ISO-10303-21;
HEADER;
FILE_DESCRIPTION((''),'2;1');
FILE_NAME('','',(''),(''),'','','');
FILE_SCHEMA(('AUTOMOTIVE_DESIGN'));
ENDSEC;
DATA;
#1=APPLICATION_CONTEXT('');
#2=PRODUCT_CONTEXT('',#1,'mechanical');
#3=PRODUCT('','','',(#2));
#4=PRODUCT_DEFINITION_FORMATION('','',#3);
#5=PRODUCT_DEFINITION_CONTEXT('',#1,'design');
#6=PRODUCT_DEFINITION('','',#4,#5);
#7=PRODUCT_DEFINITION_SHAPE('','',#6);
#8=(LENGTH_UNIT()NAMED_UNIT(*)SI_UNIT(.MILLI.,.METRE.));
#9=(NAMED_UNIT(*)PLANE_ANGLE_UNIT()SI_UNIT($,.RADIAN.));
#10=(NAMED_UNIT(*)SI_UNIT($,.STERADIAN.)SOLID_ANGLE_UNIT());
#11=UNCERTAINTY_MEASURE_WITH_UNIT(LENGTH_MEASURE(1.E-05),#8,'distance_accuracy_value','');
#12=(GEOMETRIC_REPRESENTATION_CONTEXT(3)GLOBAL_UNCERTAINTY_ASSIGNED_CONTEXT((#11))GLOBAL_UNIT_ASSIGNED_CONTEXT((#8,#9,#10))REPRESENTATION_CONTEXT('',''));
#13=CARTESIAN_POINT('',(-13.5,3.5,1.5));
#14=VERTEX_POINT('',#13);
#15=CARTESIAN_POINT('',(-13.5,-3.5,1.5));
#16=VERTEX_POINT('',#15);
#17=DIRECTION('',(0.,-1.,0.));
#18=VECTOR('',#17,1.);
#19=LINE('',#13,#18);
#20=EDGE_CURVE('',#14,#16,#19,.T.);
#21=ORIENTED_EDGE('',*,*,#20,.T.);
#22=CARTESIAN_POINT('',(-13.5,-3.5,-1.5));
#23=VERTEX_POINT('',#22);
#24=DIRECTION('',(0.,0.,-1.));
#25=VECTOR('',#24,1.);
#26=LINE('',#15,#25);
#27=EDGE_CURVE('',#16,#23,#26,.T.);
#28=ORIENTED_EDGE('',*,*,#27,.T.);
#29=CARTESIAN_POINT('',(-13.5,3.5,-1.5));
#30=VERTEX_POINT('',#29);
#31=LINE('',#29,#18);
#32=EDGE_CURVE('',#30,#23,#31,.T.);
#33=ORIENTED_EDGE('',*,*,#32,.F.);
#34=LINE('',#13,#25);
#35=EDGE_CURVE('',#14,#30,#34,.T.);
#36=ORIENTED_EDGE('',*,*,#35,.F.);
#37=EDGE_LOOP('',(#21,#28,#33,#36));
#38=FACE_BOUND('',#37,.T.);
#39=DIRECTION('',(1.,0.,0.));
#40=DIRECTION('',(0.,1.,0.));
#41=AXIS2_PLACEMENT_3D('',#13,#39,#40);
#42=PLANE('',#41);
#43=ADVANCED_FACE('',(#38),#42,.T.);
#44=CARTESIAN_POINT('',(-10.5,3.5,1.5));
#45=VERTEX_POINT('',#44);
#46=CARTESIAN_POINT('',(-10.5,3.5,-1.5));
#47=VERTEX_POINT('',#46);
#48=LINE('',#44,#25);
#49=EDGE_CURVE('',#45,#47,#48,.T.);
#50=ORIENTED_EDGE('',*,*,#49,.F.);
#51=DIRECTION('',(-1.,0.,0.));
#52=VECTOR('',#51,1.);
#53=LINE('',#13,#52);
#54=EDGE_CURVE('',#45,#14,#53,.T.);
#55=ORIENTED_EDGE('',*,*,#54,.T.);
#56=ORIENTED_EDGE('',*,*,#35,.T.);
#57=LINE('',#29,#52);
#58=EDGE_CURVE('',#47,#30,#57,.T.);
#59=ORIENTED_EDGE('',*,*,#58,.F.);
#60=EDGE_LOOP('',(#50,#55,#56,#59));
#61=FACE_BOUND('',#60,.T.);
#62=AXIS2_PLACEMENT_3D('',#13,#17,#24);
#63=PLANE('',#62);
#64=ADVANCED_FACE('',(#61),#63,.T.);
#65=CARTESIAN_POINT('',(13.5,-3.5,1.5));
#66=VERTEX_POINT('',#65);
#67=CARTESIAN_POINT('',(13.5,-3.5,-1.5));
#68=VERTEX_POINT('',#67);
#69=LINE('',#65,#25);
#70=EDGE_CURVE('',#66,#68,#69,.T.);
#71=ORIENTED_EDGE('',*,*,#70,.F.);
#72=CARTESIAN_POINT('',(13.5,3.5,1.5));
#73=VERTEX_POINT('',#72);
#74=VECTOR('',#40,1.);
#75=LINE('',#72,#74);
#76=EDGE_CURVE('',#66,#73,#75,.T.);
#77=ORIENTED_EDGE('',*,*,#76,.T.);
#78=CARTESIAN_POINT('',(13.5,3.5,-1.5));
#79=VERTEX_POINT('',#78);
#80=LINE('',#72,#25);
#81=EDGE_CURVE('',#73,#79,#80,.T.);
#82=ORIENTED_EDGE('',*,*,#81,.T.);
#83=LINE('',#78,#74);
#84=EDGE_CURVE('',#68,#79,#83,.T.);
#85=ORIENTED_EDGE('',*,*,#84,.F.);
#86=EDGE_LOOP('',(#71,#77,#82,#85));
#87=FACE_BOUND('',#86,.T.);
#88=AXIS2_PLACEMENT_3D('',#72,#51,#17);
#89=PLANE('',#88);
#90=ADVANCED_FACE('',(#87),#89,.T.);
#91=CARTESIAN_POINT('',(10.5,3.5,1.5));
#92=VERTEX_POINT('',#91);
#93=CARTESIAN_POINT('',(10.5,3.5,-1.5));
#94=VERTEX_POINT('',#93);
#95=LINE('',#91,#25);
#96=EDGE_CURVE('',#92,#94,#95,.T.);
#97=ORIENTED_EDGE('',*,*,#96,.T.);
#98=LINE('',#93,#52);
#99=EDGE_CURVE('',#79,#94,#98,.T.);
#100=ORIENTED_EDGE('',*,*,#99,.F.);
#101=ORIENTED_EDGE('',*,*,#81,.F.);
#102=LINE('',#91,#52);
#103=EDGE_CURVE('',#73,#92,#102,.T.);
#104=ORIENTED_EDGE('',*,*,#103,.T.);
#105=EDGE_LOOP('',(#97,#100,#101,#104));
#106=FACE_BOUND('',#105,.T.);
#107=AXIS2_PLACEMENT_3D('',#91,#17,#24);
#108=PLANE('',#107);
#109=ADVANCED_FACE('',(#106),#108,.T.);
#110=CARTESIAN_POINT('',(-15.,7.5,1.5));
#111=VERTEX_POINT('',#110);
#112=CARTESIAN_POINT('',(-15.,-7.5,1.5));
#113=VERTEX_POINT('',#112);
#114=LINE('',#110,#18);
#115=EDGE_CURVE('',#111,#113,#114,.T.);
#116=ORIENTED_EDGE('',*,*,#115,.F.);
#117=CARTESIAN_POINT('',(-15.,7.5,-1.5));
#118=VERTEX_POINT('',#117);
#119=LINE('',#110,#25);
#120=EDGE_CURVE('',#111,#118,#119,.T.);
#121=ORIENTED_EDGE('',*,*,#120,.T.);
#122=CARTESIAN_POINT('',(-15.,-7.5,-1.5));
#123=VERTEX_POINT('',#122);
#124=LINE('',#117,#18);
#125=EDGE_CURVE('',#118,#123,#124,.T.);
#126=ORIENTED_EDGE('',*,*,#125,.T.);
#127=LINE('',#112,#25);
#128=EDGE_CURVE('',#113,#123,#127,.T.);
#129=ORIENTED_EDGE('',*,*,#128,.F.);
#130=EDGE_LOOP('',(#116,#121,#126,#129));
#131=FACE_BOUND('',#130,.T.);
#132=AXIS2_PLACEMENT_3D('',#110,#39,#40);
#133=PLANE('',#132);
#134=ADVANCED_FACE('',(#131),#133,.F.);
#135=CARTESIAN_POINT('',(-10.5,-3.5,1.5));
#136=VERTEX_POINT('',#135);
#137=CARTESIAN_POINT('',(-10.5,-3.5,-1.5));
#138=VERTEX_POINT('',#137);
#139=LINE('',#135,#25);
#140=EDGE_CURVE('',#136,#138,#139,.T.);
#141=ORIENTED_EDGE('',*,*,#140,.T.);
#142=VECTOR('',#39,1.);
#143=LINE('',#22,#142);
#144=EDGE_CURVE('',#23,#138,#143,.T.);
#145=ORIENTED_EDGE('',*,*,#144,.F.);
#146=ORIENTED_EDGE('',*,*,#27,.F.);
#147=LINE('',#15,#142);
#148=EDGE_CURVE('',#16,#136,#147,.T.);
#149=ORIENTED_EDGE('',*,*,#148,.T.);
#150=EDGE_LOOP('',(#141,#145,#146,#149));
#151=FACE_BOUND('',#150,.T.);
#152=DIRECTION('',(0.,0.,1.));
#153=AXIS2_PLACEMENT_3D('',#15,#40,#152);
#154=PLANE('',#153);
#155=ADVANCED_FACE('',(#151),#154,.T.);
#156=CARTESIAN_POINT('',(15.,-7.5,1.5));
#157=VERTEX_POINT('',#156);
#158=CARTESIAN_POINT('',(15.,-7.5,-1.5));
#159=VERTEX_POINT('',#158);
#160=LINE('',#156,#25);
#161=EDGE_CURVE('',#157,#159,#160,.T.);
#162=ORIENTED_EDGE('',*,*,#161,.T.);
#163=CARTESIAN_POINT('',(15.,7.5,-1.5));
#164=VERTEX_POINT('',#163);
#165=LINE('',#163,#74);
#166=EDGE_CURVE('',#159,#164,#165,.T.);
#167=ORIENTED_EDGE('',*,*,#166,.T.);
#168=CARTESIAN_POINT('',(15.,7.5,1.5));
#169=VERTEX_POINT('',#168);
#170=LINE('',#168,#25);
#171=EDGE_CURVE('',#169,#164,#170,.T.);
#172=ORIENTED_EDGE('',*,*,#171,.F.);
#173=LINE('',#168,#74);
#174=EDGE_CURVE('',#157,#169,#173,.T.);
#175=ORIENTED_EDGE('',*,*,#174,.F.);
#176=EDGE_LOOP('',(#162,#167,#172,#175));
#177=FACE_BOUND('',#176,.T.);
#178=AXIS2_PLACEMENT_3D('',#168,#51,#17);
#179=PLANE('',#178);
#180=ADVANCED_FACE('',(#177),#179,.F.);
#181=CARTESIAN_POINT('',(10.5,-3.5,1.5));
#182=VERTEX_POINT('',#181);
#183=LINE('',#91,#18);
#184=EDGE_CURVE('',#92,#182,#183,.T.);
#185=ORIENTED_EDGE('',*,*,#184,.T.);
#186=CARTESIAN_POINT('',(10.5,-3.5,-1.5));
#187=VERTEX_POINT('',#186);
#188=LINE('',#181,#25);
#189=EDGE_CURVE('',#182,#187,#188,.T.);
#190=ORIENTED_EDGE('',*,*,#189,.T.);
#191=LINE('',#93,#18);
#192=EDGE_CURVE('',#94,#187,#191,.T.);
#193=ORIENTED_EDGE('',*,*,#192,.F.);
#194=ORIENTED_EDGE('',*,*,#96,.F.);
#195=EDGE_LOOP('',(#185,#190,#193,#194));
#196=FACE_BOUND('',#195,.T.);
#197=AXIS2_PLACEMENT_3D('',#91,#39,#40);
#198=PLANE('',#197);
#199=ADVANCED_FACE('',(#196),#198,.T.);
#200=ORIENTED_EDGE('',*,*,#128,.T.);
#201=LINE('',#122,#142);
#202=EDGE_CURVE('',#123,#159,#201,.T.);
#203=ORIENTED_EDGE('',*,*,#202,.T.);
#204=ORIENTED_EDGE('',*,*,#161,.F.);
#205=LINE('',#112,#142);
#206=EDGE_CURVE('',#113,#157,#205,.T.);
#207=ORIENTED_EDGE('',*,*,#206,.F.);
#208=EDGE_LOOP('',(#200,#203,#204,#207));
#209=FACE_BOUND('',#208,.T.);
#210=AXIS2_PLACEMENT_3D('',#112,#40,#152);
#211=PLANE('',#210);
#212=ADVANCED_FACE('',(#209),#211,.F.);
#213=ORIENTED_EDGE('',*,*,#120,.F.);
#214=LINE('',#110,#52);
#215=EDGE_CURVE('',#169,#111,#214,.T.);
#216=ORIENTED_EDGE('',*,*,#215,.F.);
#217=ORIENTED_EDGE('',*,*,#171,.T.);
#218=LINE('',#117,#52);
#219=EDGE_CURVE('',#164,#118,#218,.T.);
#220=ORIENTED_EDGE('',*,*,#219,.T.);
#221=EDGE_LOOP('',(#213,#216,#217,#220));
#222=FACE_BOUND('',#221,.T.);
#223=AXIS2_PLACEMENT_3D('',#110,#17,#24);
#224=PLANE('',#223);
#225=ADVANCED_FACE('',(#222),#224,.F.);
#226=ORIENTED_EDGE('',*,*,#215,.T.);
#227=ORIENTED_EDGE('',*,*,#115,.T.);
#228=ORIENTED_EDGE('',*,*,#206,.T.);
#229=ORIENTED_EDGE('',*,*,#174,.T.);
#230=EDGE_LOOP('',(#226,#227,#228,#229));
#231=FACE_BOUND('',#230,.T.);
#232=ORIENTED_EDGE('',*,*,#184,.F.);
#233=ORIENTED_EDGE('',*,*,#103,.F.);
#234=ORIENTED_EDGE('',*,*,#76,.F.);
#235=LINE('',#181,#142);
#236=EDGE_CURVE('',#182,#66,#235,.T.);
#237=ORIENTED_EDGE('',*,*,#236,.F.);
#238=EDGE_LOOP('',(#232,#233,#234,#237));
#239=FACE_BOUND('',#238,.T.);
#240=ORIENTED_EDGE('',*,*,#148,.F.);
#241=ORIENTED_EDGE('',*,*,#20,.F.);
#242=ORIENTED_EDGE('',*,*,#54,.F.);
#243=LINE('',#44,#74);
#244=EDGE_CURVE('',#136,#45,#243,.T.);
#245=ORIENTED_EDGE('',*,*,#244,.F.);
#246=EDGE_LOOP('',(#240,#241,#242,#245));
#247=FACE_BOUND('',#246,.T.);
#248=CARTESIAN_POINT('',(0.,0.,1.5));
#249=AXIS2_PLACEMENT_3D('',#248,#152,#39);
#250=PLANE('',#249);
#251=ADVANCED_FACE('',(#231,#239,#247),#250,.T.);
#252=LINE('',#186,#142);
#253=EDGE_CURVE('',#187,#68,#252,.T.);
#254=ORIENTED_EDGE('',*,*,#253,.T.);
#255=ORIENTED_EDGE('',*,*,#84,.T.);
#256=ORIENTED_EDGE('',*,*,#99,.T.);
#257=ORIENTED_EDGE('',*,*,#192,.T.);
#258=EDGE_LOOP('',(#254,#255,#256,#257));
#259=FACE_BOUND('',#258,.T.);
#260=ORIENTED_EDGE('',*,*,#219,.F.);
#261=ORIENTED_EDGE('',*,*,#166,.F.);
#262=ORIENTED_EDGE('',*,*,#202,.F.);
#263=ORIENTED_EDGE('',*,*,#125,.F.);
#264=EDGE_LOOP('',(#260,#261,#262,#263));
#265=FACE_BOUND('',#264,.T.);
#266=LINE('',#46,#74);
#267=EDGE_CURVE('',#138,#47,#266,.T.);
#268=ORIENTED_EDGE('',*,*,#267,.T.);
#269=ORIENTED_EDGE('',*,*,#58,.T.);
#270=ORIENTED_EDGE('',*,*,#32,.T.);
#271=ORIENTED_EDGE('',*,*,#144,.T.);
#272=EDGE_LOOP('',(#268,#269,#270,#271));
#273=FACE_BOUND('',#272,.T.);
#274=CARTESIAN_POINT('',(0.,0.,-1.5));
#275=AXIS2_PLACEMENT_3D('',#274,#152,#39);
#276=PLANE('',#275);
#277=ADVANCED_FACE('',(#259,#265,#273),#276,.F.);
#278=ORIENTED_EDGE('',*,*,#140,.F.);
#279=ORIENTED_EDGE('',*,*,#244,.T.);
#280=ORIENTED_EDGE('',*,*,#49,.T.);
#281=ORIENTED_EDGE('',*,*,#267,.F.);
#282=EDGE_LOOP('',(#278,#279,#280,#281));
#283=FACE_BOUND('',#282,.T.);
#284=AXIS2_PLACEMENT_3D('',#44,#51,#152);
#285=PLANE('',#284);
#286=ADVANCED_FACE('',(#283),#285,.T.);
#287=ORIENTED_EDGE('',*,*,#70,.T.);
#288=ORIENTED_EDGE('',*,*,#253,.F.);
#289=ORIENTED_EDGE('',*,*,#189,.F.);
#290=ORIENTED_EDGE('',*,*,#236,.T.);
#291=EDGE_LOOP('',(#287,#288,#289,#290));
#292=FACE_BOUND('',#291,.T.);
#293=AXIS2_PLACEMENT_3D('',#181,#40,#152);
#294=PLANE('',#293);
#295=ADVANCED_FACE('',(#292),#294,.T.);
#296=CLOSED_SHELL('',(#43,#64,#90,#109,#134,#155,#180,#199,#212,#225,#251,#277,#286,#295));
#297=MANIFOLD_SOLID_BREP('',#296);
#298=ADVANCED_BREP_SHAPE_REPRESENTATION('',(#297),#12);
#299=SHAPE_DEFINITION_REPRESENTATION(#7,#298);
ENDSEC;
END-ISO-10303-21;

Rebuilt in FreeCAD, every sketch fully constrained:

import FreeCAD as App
import Part
import Sketcher

V = App.Vector

doc = App.newDocument("Part")
body = doc.addObject("PartDesign::Body", "Body")

sketch1 = body.newObject("Sketcher::SketchObject", "Sketch")
sketch1.AttachmentSupport = (doc.getObject("XY_Plane"), [""])
sketch1.MapMode = "FlatFace"
sketch1.addGeometry([
    Part.LineSegment(V(-15, 7.5, 0), V(-15, -7.5, 0)),
    Part.LineSegment(V(-15, -7.5, 0), V(15, -7.5, 0)),
    Part.LineSegment(V(15, -7.5, 0), V(15, 7.5, 0)),
    Part.LineSegment(V(15, 7.5, 0), V(-15, 7.5, 0)),
    Part.LineSegment(V(-10.5, -3.5, 0), V(-13.5, -3.5, 0)),
    Part.LineSegment(V(-13.5, -3.5, 0), V(-13.5, 3.5, 0)),
    Part.LineSegment(V(-13.5, 3.5, 0), V(-10.5, 3.5, 0)),
    Part.LineSegment(V(-10.5, 3.5, 0), V(-10.5, -3.5, 0)),
    Part.LineSegment(V(13.5, -3.5, 0), V(10.5, -3.5, 0)),
    Part.LineSegment(V(10.5, -3.5, 0), V(10.5, 3.5, 0)),
    Part.LineSegment(V(10.5, 3.5, 0), V(13.5, 3.5, 0)),
    Part.LineSegment(V(13.5, 3.5, 0), V(13.5, -3.5, 0)),
], False)
sketch1.addConstraint([
    Sketcher.Constraint("Coincident", 0, 2, 1, 1),
    Sketcher.Constraint("Coincident", 1, 2, 2, 1),
    Sketcher.Constraint("Coincident", 2, 2, 3, 1),
    Sketcher.Constraint("Coincident", 3, 2, 0, 1),
    Sketcher.Constraint("Coincident", 4, 2, 5, 1),
    Sketcher.Constraint("Coincident", 5, 2, 6, 1),
    Sketcher.Constraint("Coincident", 6, 2, 7, 1),
    Sketcher.Constraint("Coincident", 7, 2, 4, 1),
    Sketcher.Constraint("Coincident", 8, 2, 9, 1),
    Sketcher.Constraint("Coincident", 9, 2, 10, 1),
    Sketcher.Constraint("Coincident", 10, 2, 11, 1),
    Sketcher.Constraint("Coincident", 11, 2, 8, 1),
    Sketcher.Constraint("Vertical", 0),
    Sketcher.Constraint("Horizontal", 1),
    Sketcher.Constraint("Vertical", 2),
    Sketcher.Constraint("Horizontal", 3),
    Sketcher.Constraint("Horizontal", 4),
    Sketcher.Constraint("Vertical", 5),
    Sketcher.Constraint("Horizontal", 6),
    Sketcher.Constraint("Vertical", 7),
    Sketcher.Constraint("Horizontal", 8),
    Sketcher.Constraint("Vertical", 9),
    Sketcher.Constraint("Horizontal", 10),
    Sketcher.Constraint("Vertical", 11),
    Sketcher.Constraint("Symmetric", 0, 2, 2, 2, -1, 1),
    Sketcher.Constraint("Symmetric", 6, 2, 8, 2, -1, 1),
    Sketcher.Constraint("Symmetric", 4, 2, 10, 2, -1, 1),
    Sketcher.Constraint("Horizontal", 7, 2, 8, 2),
    Sketcher.Constraint("DistanceX", 1, 1, 1, 2, 30.0),
    Sketcher.Constraint("DistanceX", 4, 2, 4, 1, 3.0),
    Sketcher.Constraint("DistanceY", 0, 2, 0, 1, 15.0),
    Sketcher.Constraint("DistanceY", 5, 1, 5, 2, 7.0),
    Sketcher.Constraint("DistanceX", 7, 2, 8, 2, 21.0),
])
pad1 = body.newObject("PartDesign::Pad", "Pad")
pad1.Profile = sketch1
pad1.Length = 3
pad1.Midplane = True

doc.recompute()
